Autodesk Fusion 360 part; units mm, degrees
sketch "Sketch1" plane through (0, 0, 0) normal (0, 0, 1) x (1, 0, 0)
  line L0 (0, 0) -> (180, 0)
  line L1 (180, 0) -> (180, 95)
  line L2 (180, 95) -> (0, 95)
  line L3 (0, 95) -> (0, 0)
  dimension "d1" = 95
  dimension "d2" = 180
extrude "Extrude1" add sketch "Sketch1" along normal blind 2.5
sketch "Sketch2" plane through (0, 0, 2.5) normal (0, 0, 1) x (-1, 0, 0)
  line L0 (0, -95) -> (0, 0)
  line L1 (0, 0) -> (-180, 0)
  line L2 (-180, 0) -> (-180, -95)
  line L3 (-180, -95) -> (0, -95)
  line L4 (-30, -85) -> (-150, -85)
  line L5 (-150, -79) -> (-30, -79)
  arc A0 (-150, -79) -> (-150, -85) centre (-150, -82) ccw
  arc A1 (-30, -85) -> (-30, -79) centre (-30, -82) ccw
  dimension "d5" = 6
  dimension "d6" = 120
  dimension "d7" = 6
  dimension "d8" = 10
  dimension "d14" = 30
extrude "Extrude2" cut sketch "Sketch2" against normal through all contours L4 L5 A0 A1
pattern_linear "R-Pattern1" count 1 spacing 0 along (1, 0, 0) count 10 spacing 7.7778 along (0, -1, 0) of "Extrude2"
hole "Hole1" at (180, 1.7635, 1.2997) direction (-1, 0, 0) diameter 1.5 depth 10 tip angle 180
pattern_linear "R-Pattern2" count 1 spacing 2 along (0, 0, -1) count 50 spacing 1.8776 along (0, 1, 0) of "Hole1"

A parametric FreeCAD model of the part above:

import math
import FreeCAD as App
import Part
import Sketcher
Q = App.Units.Quantity


def add_polygon(sketch, points):
    """Adds a closed chain of lines whose ends are joined by coincident constraints."""
    first, n = sketch.GeometryCount, len(points)
    for a, b in zip(points, points[1:] + points[:1]):
        sketch.addGeometry(Part.LineSegment(App.Vector(*a, 0), App.Vector(*b, 0)), False)
    for i in range(n):
        sketch.addConstraint(Sketcher.Constraint("Coincident", first + i, 2, first + (i + 1) % n, 1))

doc = App.newDocument("Part")
body = doc.addObject("PartDesign::Body", "Body")

# Sketch on XY plane
sketch1 = body.newObject("Sketcher::SketchObject", "Sketch")
sketch1.AttachmentSupport = (doc.getObject("XY_Plane"), [""])
sketch1.MapMode = "FlatFace"
add_polygon(sketch1, [(0, 95), (0, 0), (180, 0), (180, 95)])  # lines 0-3
sketch1.addConstraint(Sketcher.Constraint("Vertical", 0))
sketch1.addConstraint(Sketcher.Constraint("Horizontal", 1))
sketch1.addConstraint(Sketcher.Constraint("Vertical", 2))
sketch1.addConstraint(Sketcher.Constraint("Horizontal", 3))
sketch1.addConstraint(Sketcher.Constraint("Coincident", 0, 2, -1, 1))
sketch1.addConstraint(Sketcher.Constraint("DistanceX", 1, 1, 1, 2, Q("180 mm")))
sketch1.addConstraint(Sketcher.Constraint("DistanceY", 0, 2, 0, 1, Q("95 mm")))
pad1 = body.newObject("PartDesign::Pad", "Pad")
pad1.Profile = sketch1
pad1.Length = 2.5

# Sketch on XY plane
sketch2 = body.newObject("Sketcher::SketchObject", "Sketch001")
sketch2.AttachmentSupport = (doc.getObject("XY_Plane"), [""])
sketch2.MapMode = "FlatFace"
sketch2.AttachmentOffset = App.Placement(App.Vector(0, 0, 2.5), App.Rotation())
sketch2.addGeometry(Part.LineSegment(App.Vector(150, 85, 0), App.Vector(30, 85, 0)), False)
sketch2.addGeometry(Part.ArcOfCircle(Part.Circle(App.Vector(30, 82, 0), App.Vector(0, 0, 1), 3), math.radians(90), math.radians(270)), False)
sketch2.addGeometry(Part.LineSegment(App.Vector(30, 79, 0), App.Vector(150, 79, 0)), False)
sketch2.addGeometry(Part.ArcOfCircle(Part.Circle(App.Vector(150, 82, 0), App.Vector(0, 0, 1), 3), math.radians(-90), math.radians(90)), False)
sketch2.addConstraint(Sketcher.Constraint("Tangent", 0, 2, 1, 1))
sketch2.addConstraint(Sketcher.Constraint("Tangent", 1, 2, 2, 1))
sketch2.addConstraint(Sketcher.Constraint("Tangent", 2, 2, 3, 1))
sketch2.addConstraint(Sketcher.Constraint("Tangent", 3, 2, 0, 1))
sketch2.addConstraint(Sketcher.Constraint("Horizontal", 0))
sketch2.addConstraint(Sketcher.Constraint("Horizontal", 2))
sketch2.addConstraint(Sketcher.Constraint("Radius", 1, Q("3 mm")))
sketch2.addConstraint(Sketcher.Constraint("DistanceX", 0, 2, 0, 1, Q("120 mm")))
sketch2.addConstraint(Sketcher.Constraint("DistanceX", -1, 1, 1, 3, Q("30 mm")))
sketch2.addConstraint(Sketcher.Constraint("DistanceY", -1, 1, 1, 3, Q("82 mm")))
pocket1 = body.newObject("PartDesign::Pocket", "Pocket")
pocket1.Profile = sketch2
pocket1.Type = "ThroughAll"
doc.recompute()

linearpattern = body.newObject("PartDesign::LinearPattern", "LinearPattern")
linearpattern.Originals = [pocket1]
linearpattern.Direction = (doc.getObject("Y_Axis"), [""])
linearpattern.Mode = "offset"
linearpattern.Offset = 7.7778
linearpattern.Occurrences = 10
linearpattern.Reversed = True
body.Tip = linearpattern

# Sketch on YZ plane
sketch3 = body.newObject("Sketcher::SketchObject", "Sketch002")
sketch3.AttachmentSupport = (doc.getObject("YZ_Plane"), [""])
sketch3.MapMode = "FlatFace"
sketch3.AttachmentOffset = App.Placement(App.Vector(0, 0, 180), App.Rotation())
sketch3.addGeometry(Part.Circle(App.Vector(1.8, 1.3, 0), App.Vector(0, 0, 1), 0.8), False)
sketch3.addConstraint(Sketcher.Constraint("Diameter", 0, Q("1.5 mm")))
sketch3.addConstraint(Sketcher.Constraint("DistanceX", -1, 1, 0, 3, Q("1.7635 mm")))
sketch3.addConstraint(Sketcher.Constraint("DistanceY", -1, 1, 0, 3, Q("1.2997 mm")))
doc.recompute()
hole = body.newObject("PartDesign::Hole", "Hole")
hole.Profile = sketch3
hole.ThreadType = "None"
hole.Diameter = 1.5
hole.DepthType = "Dimension"
hole.Depth = 10
hole.DrillPoint = "Flat"
doc.recompute()

linearpattern2 = body.newObject("PartDesign::LinearPattern", "LinearPattern001")
linearpattern2.Originals = [hole]
linearpattern2.Direction = (doc.getObject("Y_Axis"), [""])
linearpattern2.Mode = "offset"
linearpattern2.Offset = 1.8776
linearpattern2.Occurrences = 50
body.Tip = linearpattern2

doc.recompute()
